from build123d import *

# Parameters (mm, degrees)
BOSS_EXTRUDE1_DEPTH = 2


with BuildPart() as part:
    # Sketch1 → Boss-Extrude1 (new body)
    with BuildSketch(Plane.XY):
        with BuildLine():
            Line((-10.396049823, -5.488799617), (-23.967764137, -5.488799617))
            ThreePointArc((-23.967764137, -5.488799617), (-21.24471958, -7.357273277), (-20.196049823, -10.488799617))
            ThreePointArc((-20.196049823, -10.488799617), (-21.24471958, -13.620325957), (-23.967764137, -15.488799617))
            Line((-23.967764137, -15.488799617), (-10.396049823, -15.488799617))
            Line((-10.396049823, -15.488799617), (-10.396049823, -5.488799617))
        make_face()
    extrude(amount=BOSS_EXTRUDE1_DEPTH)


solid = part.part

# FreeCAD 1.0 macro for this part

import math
import FreeCAD as App
import Part
import Sketcher

V = App.Vector
Q = App.Units.Quantity

doc = App.newDocument("Part")
params = doc.addObject("Spreadsheet::Sheet", "Params")
for row, (alias, value) in enumerate([
    ("sketch1_radius", "5.2 mm"),
    ("sketch1_height", "10 mm"),
    ("pad1_length", "2 mm"),
], start=1):
    params.set(f"A{row}", alias)
    params.set(f"B{row}", "=" + value)
    params.setAlias(f"B{row}", alias)

body = doc.addObject("PartDesign::Body", "Body")

sketch1 = doc.addObject("Sketcher::SketchObject", "Sketch")
body.addObject(sketch1)
sketch1.AttachmentSupport = (doc.XY_Plane, [""])
sketch1.MapMode = "FlatFace"
sketch1.addGeometry(Part.LineSegment(V(-10.39605, -5.4888, 0), V(-23.967764, -5.4888, 0)), False)
sketch1.addGeometry(Part.ArcOfCircle(Part.Circle(V(-25.39605, -10.4888, 0), V(0, 0, 1), 5.2), math.radians(0), math.radians(74.057631)), False)
sketch1.addGeometry(Part.ArcOfCircle(Part.Circle(V(-25.39605, -10.4888, 0), V(0, 0, 1), 5.2), math.radians(-74.057631), math.radians(0)), False)
sketch1.addGeometry(Part.LineSegment(V(-23.967764, -15.4888, 0), V(-10.39605, -15.4888, 0)), False)
sketch1.addGeometry(Part.LineSegment(V(-10.39605, -15.4888, 0), V(-10.39605, -5.4888, 0)), False)
sketch1.addConstraint(Sketcher.Constraint("Coincident", 0, 2, 1, 2))
sketch1.addConstraint(Sketcher.Constraint("Tangent", 1, 1, 2, 2))
sketch1.addConstraint(Sketcher.Constraint("Coincident", 2, 1, 3, 1))
sketch1.addConstraint(Sketcher.Constraint("Coincident", 3, 2, 4, 1))
sketch1.addConstraint(Sketcher.Constraint("Coincident", 4, 2, 0, 1))
sketch1.addConstraint(Sketcher.Constraint("Horizontal", 0))
sketch1.addConstraint(Sketcher.Constraint("Horizontal", 3))
sketch1.addConstraint(Sketcher.Constraint("Vertical", 4))
sketch1.addConstraint(Sketcher.Constraint("Equal", 1, 2))
sketch1.addConstraint(Sketcher.Constraint("Horizontal", 2, 3, 1, 1))
sketch1.addConstraint(Sketcher.Constraint("Vertical", 0, 2, 2, 1))
sketch1.addConstraint(Sketcher.Constraint("Radius", 1, Q("5.2 mm")))
sketch1.addConstraint(Sketcher.Constraint("DistanceY", 4, 1, 4, 2, Q("10 mm")))
sketch1.addConstraint(Sketcher.Constraint("DistanceX", 2, 3, 3, 2, Q("15 mm")))
sketch1.addConstraint(Sketcher.Constraint("DistanceY", 1, 3, -1, 1, Q("10.4888 mm")))
sketch1.addConstraint(Sketcher.Constraint("DistanceX", 1, 3, -1, 1, Q("25.39605 mm")))
sketch1.setExpression("Constraints[11]", "Params.sketch1_radius")
sketch1.setExpression("Constraints[12]", "Params.sketch1_height")
pad1 = doc.addObject("PartDesign::Pad", "Pad")
body.addObject(pad1)
pad1.Profile = sketch1
pad1.setExpression("Length", "Params.pad1_length")

doc.recompute()
